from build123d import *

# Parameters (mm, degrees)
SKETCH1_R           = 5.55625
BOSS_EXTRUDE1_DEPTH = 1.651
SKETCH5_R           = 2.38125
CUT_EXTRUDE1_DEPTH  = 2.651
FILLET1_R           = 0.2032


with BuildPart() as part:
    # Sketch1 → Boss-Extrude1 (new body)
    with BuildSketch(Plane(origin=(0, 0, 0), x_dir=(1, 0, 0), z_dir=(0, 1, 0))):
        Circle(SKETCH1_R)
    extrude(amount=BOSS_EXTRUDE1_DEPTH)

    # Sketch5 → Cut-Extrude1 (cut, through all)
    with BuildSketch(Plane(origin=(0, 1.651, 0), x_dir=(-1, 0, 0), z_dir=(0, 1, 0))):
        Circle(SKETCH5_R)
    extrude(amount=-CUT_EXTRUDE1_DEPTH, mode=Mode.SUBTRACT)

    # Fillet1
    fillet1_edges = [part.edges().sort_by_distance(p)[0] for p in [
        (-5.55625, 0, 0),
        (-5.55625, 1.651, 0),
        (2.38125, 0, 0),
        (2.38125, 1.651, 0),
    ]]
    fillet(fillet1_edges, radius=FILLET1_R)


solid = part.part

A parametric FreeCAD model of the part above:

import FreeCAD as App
import Part
import Sketcher

V = App.Vector
Q = App.Units.Quantity


def edges_at(feature, points):
    """Names of the edges that pass closest to the given points."""
    edges = feature.Shape.Edges
    near = lambda p: min(range(len(edges)), key=lambda i: edges[i].distToShape(Part.Vertex(*p))[0])
    return sorted({f"Edge{near(p) + 1}" for p in points})

doc = App.newDocument("Part")
params = doc.addObject("Spreadsheet::Sheet", "Params")
for row, (alias, value) in enumerate([
    ("sketch1_diameter", "0.4375 in"),
    ("pad1_length", "0.065 in"),
    ("sketch2_diameter", "0.1875 in"),
    ("fillet_radius", "0.008 in"),
], start=1):
    params.set(f"A{row}", alias)
    params.set(f"B{row}", "=" + value)
    params.setAlias(f"B{row}", alias)

body = doc.addObject("PartDesign::Body", "Body")

# Sketch on XZ plane
sketch1 = doc.addObject("Sketcher::SketchObject", "Sketch")
body.addObject(sketch1)
sketch1.AttachmentSupport = (doc.XZ_Plane, [""])
sketch1.MapMode = "FlatFace"
sketch1.addGeometry(Part.Circle(V(0, 0, 0), V(0, 0, 1), 5.55625), False)
sketch1.addConstraint(Sketcher.Constraint("Coincident", 0, 3, -1, 1))
sketch1.addConstraint(Sketcher.Constraint("Diameter", 0, Q("0.4375 in")))
sketch1.setExpression("Constraints[1]", "Params.sketch1_diameter")
pad1 = doc.addObject("PartDesign::Pad", "Pad")
body.addObject(pad1)
pad1.Profile = sketch1
pad1.setExpression("Length", "Params.pad1_length")
pad1.Reversed = True

# Sketch on XZ plane
sketch2 = doc.addObject("Sketcher::SketchObject", "Sketch001")
body.addObject(sketch2)
sketch2.AttachmentSupport = (doc.XZ_Plane, [""])
sketch2.MapMode = "FlatFace"
sketch2.AttachmentOffset = App.Placement(V(0, 0, -0.065 * 25.4), App.Rotation())
sketch2.addGeometry(Part.Circle(V(0, 0, 0), V(0, 0, 1), 2.38125), False)
sketch2.addConstraint(Sketcher.Constraint("Coincident", 0, 3, -1, 1))
sketch2.addConstraint(Sketcher.Constraint("Diameter", 0, Q("0.1875 in")))
sketch2.setExpression("Constraints[1]", "Params.sketch2_diameter")
pocket1 = doc.addObject("PartDesign::Pocket", "Pocket")
body.addObject(pocket1)
pocket1.Profile = sketch2
pocket1.Type = "ThroughAll"
pocket1.Reversed = True
doc.recompute()

fillet = doc.addObject("PartDesign::Fillet", "Fillet")
body.addObject(fillet)
fillet.Base = (pocket1, edges_at(pocket1, [
    (-5.556, 0, 0),
    (-5.556, 1.651, 0),
    (2.381, 0, 0),
    (2.381, 1.651, 0),
]))
fillet.setExpression("Radius", "Params.fillet_radius")

doc.recompute()
